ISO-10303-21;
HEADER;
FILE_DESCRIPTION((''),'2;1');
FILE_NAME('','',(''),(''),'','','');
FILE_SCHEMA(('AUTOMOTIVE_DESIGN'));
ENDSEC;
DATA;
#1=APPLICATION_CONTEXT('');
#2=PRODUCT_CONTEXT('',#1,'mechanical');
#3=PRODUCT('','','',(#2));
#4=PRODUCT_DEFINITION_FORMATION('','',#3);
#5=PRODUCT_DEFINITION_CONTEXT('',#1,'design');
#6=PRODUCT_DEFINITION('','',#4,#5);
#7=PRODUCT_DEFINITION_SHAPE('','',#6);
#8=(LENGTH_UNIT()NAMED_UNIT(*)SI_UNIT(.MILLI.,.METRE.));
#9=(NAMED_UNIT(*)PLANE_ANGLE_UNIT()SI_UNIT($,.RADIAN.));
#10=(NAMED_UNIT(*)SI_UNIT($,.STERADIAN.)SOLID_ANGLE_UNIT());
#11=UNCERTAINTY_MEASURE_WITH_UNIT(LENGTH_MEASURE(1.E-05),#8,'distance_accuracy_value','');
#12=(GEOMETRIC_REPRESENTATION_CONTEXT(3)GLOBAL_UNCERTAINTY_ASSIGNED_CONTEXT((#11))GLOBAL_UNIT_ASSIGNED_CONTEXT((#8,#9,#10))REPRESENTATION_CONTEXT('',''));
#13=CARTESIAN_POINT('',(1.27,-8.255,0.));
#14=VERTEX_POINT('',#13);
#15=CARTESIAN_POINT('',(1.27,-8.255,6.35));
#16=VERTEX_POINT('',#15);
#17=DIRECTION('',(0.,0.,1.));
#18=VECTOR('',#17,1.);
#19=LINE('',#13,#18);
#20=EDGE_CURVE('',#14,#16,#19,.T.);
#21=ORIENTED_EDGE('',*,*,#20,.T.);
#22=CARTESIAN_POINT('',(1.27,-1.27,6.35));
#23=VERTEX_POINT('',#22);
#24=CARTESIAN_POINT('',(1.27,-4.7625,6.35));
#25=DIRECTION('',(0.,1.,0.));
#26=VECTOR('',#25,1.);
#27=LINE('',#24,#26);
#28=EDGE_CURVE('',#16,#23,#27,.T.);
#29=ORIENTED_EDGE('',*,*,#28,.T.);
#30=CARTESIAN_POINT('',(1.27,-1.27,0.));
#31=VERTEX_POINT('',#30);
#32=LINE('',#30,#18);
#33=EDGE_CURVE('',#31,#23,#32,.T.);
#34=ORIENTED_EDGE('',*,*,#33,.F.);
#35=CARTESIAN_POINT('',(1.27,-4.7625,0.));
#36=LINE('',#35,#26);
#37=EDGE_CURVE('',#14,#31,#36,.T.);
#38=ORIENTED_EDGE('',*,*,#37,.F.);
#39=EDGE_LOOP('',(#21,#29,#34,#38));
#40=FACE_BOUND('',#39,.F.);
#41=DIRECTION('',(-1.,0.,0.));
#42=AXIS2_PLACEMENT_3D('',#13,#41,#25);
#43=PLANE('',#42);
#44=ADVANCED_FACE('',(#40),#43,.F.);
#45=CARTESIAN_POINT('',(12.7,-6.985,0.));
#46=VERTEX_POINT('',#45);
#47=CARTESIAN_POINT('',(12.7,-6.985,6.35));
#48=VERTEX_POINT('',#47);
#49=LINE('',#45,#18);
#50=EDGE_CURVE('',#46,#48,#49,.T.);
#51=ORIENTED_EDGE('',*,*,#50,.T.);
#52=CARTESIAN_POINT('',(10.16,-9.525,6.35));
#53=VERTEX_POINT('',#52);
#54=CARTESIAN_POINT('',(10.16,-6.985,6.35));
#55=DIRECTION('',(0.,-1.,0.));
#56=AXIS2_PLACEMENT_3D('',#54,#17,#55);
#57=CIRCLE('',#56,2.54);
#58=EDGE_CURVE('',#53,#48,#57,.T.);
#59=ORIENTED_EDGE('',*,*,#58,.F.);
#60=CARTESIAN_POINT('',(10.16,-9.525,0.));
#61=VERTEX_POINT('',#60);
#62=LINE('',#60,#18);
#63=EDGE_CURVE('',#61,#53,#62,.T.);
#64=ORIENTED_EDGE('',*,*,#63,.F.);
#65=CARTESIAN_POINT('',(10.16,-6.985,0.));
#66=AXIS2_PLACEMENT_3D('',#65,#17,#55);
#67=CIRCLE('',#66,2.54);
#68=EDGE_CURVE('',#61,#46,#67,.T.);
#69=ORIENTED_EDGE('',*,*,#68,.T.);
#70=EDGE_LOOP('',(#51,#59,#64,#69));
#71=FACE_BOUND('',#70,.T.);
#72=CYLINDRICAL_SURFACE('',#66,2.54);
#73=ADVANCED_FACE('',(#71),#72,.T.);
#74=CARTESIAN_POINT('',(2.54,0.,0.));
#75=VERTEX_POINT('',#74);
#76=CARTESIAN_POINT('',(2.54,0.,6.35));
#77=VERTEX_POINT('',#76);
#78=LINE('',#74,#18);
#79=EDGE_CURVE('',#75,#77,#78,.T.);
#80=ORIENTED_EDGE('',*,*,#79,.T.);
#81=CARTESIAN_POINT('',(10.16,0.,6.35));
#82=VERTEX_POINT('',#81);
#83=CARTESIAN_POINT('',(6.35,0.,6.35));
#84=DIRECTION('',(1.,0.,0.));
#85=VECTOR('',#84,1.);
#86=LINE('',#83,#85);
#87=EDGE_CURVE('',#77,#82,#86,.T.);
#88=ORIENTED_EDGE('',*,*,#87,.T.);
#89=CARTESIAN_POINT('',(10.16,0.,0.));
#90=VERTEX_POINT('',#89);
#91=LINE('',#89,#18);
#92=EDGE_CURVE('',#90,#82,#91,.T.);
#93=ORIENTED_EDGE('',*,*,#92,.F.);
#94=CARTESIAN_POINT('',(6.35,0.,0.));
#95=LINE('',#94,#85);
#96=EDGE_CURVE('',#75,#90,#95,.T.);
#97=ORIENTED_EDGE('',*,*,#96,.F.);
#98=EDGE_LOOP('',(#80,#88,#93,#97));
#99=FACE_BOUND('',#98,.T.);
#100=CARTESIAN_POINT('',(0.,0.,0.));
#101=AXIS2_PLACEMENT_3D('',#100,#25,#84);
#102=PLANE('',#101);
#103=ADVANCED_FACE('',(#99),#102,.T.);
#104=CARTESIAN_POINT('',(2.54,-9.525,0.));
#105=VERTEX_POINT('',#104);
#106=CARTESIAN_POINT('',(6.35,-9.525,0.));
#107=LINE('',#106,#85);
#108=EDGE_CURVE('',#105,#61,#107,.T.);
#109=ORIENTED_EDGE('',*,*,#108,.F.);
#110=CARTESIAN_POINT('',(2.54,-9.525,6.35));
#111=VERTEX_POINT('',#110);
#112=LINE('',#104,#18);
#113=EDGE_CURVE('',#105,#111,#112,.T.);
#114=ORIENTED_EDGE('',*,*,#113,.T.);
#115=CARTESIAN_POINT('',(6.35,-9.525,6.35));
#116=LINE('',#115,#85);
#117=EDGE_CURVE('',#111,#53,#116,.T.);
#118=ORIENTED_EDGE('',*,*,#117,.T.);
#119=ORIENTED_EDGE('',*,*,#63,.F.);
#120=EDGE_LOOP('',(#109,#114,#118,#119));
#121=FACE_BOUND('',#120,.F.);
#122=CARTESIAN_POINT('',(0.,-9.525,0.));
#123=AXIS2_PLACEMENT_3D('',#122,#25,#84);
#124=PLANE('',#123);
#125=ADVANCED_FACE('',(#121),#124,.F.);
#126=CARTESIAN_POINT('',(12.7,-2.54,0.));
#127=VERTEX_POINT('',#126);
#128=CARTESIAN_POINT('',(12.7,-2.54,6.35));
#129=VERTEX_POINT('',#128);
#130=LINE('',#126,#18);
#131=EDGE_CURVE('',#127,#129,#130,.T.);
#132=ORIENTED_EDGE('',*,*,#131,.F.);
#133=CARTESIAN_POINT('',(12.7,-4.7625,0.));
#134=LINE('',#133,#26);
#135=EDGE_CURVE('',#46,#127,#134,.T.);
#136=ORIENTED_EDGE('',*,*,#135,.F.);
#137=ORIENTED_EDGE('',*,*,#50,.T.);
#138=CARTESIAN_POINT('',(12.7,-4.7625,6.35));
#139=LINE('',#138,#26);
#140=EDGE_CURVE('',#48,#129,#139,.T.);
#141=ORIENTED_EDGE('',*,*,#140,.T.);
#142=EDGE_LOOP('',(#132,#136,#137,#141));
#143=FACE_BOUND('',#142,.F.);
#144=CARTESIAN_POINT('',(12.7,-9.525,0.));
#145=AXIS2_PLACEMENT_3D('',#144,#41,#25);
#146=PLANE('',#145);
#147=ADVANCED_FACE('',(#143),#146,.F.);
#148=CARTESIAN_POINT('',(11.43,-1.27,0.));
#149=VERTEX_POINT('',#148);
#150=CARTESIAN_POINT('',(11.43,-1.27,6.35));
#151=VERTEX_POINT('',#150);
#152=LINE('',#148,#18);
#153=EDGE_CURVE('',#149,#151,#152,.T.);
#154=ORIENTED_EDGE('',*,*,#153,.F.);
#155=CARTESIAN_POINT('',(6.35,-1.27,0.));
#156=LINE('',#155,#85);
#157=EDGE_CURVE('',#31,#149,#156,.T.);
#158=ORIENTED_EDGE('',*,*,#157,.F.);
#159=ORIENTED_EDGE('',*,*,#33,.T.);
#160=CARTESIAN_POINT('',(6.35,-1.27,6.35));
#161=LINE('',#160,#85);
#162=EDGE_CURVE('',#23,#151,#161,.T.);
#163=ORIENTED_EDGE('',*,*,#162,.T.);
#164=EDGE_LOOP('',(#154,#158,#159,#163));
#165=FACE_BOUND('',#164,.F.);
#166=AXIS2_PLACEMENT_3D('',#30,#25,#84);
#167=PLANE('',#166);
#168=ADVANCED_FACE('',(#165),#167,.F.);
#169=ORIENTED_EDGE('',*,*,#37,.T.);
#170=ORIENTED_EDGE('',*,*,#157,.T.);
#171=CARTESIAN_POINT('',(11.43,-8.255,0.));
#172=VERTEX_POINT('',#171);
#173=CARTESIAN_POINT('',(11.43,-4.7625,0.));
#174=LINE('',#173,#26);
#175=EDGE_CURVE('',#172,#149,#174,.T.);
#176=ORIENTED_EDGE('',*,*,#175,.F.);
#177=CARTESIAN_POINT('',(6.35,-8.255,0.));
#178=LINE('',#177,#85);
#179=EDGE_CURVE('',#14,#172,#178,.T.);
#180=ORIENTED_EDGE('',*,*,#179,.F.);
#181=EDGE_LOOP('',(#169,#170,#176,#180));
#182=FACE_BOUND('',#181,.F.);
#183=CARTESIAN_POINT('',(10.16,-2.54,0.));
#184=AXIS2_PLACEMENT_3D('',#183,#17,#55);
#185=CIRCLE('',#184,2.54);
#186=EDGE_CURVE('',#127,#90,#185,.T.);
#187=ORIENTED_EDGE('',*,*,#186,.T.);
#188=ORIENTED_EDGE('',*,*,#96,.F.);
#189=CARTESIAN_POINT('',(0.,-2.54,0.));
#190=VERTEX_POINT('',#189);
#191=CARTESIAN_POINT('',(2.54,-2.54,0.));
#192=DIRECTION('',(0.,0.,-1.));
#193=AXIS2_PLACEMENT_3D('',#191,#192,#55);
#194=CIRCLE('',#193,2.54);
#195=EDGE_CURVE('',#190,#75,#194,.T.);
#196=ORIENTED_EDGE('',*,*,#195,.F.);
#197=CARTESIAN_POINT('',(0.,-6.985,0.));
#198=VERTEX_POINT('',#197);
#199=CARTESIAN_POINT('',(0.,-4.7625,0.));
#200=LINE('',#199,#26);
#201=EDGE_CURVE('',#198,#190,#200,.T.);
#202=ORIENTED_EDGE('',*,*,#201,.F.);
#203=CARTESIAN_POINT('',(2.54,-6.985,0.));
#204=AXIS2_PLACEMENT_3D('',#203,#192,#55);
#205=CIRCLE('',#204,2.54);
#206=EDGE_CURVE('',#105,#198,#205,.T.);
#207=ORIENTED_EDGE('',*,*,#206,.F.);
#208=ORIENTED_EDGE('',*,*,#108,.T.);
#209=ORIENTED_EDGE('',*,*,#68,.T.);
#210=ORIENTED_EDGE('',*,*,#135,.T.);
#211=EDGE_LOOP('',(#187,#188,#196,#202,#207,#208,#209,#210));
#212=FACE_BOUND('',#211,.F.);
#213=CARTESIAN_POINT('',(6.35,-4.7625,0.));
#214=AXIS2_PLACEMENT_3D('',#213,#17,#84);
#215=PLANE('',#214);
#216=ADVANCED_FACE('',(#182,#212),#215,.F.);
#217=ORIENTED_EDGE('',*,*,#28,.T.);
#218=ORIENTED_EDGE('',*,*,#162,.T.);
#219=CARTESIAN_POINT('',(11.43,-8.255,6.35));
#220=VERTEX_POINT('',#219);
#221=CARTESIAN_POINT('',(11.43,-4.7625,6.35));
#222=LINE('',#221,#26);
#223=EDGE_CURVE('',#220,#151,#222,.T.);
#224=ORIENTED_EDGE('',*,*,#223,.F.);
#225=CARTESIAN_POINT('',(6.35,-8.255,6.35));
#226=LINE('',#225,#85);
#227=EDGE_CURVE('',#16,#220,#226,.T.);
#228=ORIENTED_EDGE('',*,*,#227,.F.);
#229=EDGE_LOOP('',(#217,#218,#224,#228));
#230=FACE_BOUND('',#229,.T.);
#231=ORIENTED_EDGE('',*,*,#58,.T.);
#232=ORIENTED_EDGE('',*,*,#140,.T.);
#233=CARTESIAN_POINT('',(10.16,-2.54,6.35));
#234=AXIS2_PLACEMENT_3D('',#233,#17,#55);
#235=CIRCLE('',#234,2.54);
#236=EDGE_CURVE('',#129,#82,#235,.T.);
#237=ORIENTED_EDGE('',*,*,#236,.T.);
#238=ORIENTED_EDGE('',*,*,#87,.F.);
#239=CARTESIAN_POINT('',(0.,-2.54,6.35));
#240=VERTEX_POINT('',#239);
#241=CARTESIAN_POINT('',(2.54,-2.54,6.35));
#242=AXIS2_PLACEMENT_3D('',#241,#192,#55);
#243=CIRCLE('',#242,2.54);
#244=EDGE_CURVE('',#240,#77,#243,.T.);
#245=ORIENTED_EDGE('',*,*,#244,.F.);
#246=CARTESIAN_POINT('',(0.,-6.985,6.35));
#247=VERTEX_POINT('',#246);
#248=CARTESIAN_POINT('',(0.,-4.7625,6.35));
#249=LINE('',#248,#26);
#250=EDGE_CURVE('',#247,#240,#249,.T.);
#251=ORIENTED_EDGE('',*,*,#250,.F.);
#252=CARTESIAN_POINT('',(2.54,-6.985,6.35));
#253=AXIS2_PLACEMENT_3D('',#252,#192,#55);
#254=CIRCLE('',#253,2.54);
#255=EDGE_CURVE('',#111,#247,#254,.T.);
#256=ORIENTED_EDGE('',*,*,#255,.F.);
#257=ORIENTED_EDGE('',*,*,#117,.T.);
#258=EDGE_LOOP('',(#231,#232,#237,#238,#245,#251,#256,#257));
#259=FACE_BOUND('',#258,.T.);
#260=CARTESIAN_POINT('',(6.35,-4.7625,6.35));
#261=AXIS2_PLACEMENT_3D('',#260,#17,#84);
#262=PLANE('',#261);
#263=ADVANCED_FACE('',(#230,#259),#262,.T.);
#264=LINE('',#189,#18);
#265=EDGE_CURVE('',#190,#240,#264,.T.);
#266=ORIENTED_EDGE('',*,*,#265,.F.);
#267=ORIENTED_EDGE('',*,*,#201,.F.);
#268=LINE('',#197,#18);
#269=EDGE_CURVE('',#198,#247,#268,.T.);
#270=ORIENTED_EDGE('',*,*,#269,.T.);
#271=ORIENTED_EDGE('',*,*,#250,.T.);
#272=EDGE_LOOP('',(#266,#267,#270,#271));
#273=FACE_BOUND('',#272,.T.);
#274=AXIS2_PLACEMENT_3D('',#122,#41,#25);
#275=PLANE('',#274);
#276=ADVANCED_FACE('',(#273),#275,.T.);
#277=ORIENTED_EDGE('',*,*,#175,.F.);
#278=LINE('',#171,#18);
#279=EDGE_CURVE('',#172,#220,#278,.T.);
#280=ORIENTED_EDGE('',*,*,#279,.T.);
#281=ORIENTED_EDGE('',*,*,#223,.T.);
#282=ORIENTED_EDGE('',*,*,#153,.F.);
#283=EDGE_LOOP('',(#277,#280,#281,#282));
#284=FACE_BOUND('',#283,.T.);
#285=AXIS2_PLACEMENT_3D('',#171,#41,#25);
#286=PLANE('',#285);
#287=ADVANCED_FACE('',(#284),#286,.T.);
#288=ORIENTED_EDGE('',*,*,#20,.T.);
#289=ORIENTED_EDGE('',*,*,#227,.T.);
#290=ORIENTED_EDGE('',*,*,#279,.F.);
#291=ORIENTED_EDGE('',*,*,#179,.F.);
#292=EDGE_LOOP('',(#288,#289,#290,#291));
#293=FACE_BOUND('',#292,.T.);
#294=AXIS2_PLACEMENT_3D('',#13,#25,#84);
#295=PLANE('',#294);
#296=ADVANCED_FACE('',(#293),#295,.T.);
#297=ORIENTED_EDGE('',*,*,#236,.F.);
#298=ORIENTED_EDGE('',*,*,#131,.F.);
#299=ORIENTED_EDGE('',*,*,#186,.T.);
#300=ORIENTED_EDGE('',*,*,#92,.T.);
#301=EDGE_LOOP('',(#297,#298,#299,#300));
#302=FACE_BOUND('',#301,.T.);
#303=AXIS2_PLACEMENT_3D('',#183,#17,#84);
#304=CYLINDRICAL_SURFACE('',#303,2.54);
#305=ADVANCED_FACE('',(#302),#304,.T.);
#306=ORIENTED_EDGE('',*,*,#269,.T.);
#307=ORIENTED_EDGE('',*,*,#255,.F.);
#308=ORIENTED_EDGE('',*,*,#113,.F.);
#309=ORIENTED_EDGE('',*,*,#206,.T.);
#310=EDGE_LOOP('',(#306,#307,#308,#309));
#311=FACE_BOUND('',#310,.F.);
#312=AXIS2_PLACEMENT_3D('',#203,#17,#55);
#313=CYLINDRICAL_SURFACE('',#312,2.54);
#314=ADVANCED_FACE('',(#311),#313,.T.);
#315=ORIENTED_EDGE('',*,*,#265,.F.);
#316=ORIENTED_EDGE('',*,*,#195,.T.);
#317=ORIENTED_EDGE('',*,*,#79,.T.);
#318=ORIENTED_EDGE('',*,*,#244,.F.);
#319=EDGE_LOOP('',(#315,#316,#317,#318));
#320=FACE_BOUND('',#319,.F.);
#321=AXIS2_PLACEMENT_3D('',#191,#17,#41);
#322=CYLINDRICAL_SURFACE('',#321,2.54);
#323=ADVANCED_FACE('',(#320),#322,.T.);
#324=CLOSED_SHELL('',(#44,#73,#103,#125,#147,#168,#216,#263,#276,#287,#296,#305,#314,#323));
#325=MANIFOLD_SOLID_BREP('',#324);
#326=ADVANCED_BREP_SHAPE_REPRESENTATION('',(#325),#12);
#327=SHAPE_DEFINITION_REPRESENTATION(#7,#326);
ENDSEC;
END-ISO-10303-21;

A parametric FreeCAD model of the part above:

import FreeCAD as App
import Part
import Sketcher
Q = App.Units.Quantity


def edges_at(feature, points):
    """Names of the edges that pass closest to the given points."""
    edges = feature.Shape.Edges
    near = lambda p: min(range(len(edges)), key=lambda i: edges[i].distToShape(Part.Vertex(*p))[0])
    return sorted({f"Edge{near(p) + 1}" for p in points})


def add_polygon(sketch, points):
    """Adds a closed chain of lines whose ends are joined by coincident constraints."""
    first, n = sketch.GeometryCount, len(points)
    for a, b in zip(points, points[1:] + points[:1]):
        sketch.addGeometry(Part.LineSegment(App.Vector(*a, 0), App.Vector(*b, 0)), False)
    for i in range(n):
        sketch.addConstraint(Sketcher.Constraint("Coincident", first + i, 2, first + (i + 1) % n, 1))

doc = App.newDocument("Part")
body = doc.addObject("PartDesign::Body", "Body")

sketch1 = body.newObject("Sketcher::SketchObject", "Sketch")
sketch1.AttachmentSupport = (doc.getObject("XY_Plane"), [""])
sketch1.MapMode = "FlatFace"
add_polygon(sketch1, [(0, 0), (0, -10), (13, -10), (13, 0)])
add_polygon(sketch1, [(11, -8), (1, -8), (1, -1), (11, -1)])
sketch1.addConstraint([
    Sketcher.Constraint("Vertical", 0),
    Sketcher.Constraint("Horizontal", 1),
    Sketcher.Constraint("Vertical", 2),
    Sketcher.Constraint("Horizontal", 3),
    Sketcher.Constraint("Horizontal", 4),
    Sketcher.Constraint("Vertical", 5),
    Sketcher.Constraint("Horizontal", 6),
    Sketcher.Constraint("Vertical", 7),
    Sketcher.Constraint("Coincident", 3, 2, -1, 1),
    Sketcher.Constraint("DistanceX", 1, 1, 1, 2, Q("0.5 in")),
    Sketcher.Constraint("DistanceX", 4, 2, 4, 1, Q("0.4 in")),
    Sketcher.Constraint("DistanceY", 0, 2, 0, 1, Q("0.375 in")),
    Sketcher.Constraint("DistanceY", 5, 1, 5, 2, Q("0.275 in")),
    Sketcher.Constraint("DistanceX", -1, 1, 4, 2, Q("0.05 in")),
    Sketcher.Constraint("DistanceY", 5, 2, -1, 1, Q("0.05 in")),
])
pad1 = body.newObject("PartDesign::Pad", "Pad")
pad1.Profile = sketch1
pad1.Length = Q("0.25 in")
doc.recompute()

fillet = body.newObject("PartDesign::Fillet", "Fillet")
fillet.Base = (pad1, edges_at(pad1, [(12.7, -9.525, 3.175)]))
fillet.Radius = Q("0.1 in")
doc.recompute()

fillet2 = body.newObject("PartDesign::Fillet", "Fillet001")
fillet2.Base = (fillet, edges_at(fillet, [(0, -9.525, 3.175)]))
fillet2.Radius = Q("0.1 in")
doc.recompute()

fillet3 = body.newObject("PartDesign::Fillet", "Fillet002")
fillet3.Base = (fillet2, edges_at(fillet2, [(12.7, 0, 3.175), (0, 0, 3.175)]))
fillet3.Radius = Q("0.1 in")

doc.recompute()
